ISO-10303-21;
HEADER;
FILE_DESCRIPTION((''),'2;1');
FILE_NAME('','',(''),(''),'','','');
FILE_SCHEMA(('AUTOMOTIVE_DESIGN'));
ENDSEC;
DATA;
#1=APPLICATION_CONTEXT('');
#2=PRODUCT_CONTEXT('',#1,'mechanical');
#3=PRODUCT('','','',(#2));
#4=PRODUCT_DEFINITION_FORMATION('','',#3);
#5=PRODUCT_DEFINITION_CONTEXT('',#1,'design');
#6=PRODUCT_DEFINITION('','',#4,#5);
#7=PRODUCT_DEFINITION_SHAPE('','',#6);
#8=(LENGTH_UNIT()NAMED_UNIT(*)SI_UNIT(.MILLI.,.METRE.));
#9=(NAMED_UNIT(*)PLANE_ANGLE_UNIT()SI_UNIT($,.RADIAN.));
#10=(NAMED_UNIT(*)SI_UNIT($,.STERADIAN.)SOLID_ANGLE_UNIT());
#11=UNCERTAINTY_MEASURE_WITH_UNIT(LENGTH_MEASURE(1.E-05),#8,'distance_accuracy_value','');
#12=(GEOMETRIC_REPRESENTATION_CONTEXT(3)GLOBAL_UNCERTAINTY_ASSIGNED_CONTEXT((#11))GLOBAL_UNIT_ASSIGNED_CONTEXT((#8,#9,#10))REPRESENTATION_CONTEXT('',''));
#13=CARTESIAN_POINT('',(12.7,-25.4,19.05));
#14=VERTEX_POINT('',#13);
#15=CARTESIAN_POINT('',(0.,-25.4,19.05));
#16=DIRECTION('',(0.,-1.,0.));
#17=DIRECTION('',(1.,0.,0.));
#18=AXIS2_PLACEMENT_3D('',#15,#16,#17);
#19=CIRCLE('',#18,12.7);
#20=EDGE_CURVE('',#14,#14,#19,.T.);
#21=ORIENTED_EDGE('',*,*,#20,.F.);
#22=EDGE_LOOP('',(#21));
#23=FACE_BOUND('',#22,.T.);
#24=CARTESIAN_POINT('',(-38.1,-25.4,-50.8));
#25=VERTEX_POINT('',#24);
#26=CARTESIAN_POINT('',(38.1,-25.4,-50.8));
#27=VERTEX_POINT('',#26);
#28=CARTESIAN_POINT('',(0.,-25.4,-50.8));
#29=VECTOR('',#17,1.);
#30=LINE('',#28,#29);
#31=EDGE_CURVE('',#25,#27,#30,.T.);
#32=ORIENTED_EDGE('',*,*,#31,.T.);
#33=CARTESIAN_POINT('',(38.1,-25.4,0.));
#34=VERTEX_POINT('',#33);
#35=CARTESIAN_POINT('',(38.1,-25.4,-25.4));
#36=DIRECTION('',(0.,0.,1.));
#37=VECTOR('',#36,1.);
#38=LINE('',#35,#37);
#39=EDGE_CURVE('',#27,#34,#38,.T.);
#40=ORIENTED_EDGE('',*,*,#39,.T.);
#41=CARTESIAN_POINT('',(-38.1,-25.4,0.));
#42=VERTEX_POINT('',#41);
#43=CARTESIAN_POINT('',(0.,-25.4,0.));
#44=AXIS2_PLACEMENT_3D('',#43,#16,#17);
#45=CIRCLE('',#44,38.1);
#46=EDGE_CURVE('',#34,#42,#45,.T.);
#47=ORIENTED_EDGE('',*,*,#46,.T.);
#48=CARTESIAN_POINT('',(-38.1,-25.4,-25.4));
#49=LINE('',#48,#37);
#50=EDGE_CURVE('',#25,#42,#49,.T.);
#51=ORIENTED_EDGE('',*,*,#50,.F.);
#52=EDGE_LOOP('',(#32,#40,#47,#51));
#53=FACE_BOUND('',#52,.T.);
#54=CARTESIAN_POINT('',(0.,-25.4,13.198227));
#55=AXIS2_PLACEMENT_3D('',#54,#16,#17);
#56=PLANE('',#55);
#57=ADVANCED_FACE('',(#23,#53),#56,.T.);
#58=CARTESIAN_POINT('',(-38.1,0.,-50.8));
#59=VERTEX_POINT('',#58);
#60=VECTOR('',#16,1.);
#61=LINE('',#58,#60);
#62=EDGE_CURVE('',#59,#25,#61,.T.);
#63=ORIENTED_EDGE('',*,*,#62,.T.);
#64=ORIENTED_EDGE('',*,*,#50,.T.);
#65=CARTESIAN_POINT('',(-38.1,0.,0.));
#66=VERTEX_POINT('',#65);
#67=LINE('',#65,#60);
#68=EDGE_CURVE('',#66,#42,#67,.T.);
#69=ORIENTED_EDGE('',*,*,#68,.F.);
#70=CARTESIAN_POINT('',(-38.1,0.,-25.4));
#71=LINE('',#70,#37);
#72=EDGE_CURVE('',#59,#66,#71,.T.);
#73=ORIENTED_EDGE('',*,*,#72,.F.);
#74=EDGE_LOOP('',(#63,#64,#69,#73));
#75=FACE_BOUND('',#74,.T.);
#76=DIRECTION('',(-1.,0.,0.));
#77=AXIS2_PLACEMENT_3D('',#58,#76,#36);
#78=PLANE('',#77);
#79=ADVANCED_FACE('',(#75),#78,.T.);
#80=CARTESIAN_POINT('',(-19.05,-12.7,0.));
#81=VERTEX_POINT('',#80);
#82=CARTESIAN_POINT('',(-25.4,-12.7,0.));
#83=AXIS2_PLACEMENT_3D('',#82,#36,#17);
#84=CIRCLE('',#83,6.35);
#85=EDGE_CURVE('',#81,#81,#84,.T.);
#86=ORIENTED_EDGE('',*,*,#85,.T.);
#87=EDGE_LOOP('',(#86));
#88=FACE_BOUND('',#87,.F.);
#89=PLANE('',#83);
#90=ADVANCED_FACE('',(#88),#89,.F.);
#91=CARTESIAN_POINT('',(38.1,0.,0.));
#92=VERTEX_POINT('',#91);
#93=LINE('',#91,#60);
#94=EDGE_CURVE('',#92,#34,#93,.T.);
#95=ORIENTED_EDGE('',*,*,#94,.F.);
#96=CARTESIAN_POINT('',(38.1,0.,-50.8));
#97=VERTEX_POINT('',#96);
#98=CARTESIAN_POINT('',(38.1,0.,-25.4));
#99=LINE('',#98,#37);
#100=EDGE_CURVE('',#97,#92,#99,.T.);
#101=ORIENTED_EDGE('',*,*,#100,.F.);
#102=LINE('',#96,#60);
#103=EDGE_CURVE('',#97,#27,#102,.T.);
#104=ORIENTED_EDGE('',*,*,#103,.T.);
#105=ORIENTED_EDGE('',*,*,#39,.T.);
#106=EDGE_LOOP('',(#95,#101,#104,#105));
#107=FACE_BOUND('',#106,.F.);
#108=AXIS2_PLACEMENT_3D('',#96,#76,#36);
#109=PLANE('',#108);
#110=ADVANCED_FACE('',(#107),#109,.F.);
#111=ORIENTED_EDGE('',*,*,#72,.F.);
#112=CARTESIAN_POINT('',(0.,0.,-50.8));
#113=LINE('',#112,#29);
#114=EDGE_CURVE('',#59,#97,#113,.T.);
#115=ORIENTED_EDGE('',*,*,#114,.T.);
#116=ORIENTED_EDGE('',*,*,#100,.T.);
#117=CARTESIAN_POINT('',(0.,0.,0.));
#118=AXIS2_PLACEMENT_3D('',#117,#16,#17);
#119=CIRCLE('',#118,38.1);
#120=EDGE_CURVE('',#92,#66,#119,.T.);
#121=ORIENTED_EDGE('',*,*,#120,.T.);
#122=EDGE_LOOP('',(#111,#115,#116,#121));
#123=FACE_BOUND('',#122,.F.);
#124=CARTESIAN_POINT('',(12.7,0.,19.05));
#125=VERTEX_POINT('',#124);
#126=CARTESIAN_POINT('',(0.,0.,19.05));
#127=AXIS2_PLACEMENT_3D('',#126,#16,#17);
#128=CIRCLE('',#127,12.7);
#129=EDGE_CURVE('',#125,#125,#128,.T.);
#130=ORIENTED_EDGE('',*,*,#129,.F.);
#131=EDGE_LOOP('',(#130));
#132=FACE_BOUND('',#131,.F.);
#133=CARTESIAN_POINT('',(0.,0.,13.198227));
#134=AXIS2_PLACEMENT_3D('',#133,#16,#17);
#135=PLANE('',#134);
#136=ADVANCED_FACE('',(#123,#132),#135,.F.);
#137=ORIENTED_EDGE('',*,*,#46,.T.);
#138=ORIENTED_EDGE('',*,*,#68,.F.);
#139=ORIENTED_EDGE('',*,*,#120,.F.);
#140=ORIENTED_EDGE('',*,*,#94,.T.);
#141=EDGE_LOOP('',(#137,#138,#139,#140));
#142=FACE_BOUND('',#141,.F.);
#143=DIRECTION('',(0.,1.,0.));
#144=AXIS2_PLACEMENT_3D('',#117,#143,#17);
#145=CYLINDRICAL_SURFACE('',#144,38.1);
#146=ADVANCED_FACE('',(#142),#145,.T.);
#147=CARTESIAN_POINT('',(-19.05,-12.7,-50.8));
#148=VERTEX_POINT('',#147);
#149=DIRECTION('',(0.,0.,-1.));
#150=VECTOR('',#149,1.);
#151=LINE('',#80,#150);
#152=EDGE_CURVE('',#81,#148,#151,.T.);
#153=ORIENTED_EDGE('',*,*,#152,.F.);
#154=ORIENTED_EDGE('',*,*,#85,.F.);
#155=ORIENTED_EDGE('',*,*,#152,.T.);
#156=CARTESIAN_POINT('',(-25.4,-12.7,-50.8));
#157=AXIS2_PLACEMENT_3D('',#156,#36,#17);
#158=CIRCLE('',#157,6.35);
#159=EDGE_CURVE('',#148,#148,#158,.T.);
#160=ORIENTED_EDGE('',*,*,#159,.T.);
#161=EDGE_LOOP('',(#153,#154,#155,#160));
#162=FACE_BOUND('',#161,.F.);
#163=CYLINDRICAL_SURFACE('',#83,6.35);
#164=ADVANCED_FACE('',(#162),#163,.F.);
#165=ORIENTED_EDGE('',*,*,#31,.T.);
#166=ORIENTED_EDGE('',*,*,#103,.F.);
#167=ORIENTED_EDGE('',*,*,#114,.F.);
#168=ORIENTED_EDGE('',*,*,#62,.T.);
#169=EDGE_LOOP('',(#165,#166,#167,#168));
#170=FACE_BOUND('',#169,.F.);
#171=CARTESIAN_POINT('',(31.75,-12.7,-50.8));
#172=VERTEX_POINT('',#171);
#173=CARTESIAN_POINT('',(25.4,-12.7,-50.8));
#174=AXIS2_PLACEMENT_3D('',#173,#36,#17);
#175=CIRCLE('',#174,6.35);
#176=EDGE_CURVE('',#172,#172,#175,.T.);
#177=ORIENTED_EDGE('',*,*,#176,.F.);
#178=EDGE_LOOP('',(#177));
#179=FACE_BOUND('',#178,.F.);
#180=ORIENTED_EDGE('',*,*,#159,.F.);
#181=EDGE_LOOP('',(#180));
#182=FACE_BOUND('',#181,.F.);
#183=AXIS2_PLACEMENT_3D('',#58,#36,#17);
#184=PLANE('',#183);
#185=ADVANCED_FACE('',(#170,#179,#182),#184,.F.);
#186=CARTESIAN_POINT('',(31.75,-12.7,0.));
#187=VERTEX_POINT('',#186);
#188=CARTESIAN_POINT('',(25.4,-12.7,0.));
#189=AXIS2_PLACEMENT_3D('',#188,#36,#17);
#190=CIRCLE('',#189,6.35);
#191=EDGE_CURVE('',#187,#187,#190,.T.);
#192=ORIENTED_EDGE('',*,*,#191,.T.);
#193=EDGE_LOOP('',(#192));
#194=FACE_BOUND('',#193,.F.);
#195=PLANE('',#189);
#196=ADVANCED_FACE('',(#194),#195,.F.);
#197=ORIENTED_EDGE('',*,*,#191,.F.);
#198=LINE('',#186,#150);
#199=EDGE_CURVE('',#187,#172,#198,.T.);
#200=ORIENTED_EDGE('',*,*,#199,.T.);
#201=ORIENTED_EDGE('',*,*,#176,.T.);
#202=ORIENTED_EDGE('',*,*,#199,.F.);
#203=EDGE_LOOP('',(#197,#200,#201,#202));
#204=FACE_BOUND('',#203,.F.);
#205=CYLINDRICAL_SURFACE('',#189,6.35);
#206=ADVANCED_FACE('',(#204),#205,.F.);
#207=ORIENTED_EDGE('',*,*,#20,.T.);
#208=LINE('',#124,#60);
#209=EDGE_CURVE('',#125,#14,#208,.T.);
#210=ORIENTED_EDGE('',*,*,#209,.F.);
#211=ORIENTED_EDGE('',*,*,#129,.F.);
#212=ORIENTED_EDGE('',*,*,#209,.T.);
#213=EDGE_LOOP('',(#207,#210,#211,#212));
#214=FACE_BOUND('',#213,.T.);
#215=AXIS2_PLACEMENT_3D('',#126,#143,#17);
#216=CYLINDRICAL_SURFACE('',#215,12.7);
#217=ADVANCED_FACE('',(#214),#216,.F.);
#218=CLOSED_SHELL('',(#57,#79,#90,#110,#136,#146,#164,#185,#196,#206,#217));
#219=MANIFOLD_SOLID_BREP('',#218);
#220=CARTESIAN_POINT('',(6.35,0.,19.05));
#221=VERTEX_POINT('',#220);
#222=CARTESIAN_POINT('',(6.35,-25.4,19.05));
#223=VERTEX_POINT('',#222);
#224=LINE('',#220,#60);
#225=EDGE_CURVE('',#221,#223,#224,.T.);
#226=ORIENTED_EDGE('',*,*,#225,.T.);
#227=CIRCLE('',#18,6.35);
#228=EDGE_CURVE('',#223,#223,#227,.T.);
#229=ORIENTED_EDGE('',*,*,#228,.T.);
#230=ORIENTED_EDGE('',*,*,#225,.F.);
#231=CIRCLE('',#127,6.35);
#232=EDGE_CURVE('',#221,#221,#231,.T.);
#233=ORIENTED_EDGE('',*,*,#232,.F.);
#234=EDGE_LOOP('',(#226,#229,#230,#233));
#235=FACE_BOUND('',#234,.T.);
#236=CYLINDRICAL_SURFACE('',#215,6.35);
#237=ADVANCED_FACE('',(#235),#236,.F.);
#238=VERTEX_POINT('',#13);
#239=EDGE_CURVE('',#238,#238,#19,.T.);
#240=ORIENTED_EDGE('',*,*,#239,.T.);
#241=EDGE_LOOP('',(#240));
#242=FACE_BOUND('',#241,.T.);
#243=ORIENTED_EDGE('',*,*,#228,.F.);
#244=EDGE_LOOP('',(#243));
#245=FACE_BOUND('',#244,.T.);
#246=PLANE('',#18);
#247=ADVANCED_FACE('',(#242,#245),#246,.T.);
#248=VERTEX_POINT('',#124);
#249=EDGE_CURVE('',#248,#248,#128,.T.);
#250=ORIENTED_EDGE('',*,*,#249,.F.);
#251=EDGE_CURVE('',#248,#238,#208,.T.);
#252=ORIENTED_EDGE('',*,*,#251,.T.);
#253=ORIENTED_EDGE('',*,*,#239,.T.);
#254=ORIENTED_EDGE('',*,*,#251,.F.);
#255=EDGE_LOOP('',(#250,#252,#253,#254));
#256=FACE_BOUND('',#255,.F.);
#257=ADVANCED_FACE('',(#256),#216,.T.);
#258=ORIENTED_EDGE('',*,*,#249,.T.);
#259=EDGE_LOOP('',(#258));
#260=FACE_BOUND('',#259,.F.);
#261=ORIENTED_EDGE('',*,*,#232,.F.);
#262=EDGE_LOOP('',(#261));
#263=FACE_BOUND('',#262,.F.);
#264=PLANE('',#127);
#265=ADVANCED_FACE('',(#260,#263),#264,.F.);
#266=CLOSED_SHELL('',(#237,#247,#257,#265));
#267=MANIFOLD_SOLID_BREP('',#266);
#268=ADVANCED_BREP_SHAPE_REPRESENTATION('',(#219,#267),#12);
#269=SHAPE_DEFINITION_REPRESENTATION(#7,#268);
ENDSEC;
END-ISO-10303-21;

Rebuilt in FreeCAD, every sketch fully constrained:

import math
import FreeCAD as App
import Part
import Sketcher
Q = App.Units.Quantity

doc = App.newDocument("Part")
params = doc.addObject("Spreadsheet::Sheet", "Params")
for row, (alias, value) in enumerate([
    ("sketch1_diameter", "1 in"),
    ("sketch1_radius", "1.5 in"),
    ("sketch1_height", "2 in"),
    ("pad1_length", "1 in"),
    ("sketch2_diameter", "0.5 in"),
    ("sketch3_diameter", "1 in"),
    ("sketch3_diameter2", "0.5 in"),
    ("pad2_length", "1 in"),
], start=1):
    params.set(f"A{row}", alias)
    params.set(f"B{row}", "=" + value)
    params.setAlias(f"B{row}", alias)

body = doc.addObject("PartDesign::Body", "Body")

# Sketch on XZ plane
sketch1 = body.newObject("Sketcher::SketchObject", "Sketch")
sketch1.AttachmentSupport = (doc.getObject("XZ_Plane"), [""])
sketch1.MapMode = "FlatFace"
sketch1.addGeometry(Part.ArcOfCircle(Part.Circle(App.Vector(0, 0, 0), App.Vector(0, 0, 1), 38), math.radians(0), math.radians(180)), False)
sketch1.addGeometry(Part.LineSegment(App.Vector(-38, 0, 0), App.Vector(-38, -51, 0)), False)
sketch1.addGeometry(Part.LineSegment(App.Vector(-38, -51, 0), App.Vector(38, -51, 0)), False)
sketch1.addGeometry(Part.LineSegment(App.Vector(38, -51, 0), App.Vector(38, 0, 0)), False)
sketch1.addGeometry(Part.Circle(App.Vector(0, 19, 0), App.Vector(0, 0, 1), 13), False)
sketch1.addConstraint(Sketcher.Constraint("Tangent", 0, 2, 1, 1))
sketch1.addConstraint(Sketcher.Constraint("Coincident", 1, 2, 2, 1))
sketch1.addConstraint(Sketcher.Constraint("Coincident", 2, 2, 3, 1))
sketch1.addConstraint(Sketcher.Constraint("Tangent", 3, 2, 0, 1))
sketch1.addConstraint(Sketcher.Constraint("Vertical", 1))
sketch1.addConstraint(Sketcher.Constraint("Horizontal", 2))
sketch1.addConstraint(Sketcher.Constraint("Vertical", 3))
sketch1.addConstraint(Sketcher.Constraint("Coincident", 0, 3, -1, 1))
sketch1.addConstraint(Sketcher.Constraint("PointOnObject", 4, 3, -2))
sketch1.addConstraint(Sketcher.Constraint("Diameter", 4, Q("1 in")))
sketch1.addConstraint(Sketcher.Constraint("Radius", 0, Q("1.5 in")))
sketch1.addConstraint(Sketcher.Constraint("DistanceY", 1, 2, 1, 1, Q("2 in")))
sketch1.addConstraint(Sketcher.Constraint("DistanceY", -1, 1, 4, 3, Q("0.75 in")))
sketch1.setExpression("Constraints[9]", "Params.sketch1_diameter")
sketch1.setExpression("Constraints[10]", "Params.sketch1_radius")
sketch1.setExpression("Constraints[11]", "Params.sketch1_height")
pad1 = body.newObject("PartDesign::Pad", "Pad")
pad1.Profile = sketch1
pad1.setExpression("Length", "Params.pad1_length")

# Sketch on XY plane
sketch2 = body.newObject("Sketcher::SketchObject", "Sketch001")
sketch2.AttachmentSupport = (doc.getObject("XY_Plane"), [""])
sketch2.MapMode = "FlatFace"
sketch2.addGeometry(Part.Circle(App.Vector(25, -13, 0), App.Vector(0, 0, 1), 6), False)
sketch2.addGeometry(Part.Circle(App.Vector(-25, -13, 0), App.Vector(0, 0, 1), 6), False)
sketch2.addConstraint(Sketcher.Constraint("Equal", 0, 1))
sketch2.addConstraint(Sketcher.Constraint("Symmetric", 0, 3, 1, 3, -2))
sketch2.addConstraint(Sketcher.Constraint("Diameter", 0, Q("0.5 in")))
sketch2.addConstraint(Sketcher.Constraint("DistanceX", -1, 1, 0, 3, Q("1 in")))
sketch2.addConstraint(Sketcher.Constraint("DistanceY", 0, 3, -1, 1, Q("0.5 in")))
sketch2.setExpression("Constraints[2]", "Params.sketch2_diameter")
pocket1 = body.newObject("PartDesign::Pocket", "Pocket")
pocket1.Profile = sketch2
pocket1.Type = "ThroughAll"
body2 = doc.addObject("PartDesign::Body", "Body001")

# Sketch on XZ plane
sketch3 = body2.newObject("Sketcher::SketchObject", "Sketch002")
sketch3.AttachmentSupport = (doc.getObject("XZ_Plane001"), [""])
sketch3.MapMode = "FlatFace"
sketch3.addGeometry(Part.Circle(App.Vector(0, 19, 0), App.Vector(0, 0, 1), 13), False)
sketch3.addGeometry(Part.Circle(App.Vector(0, 19, 0), App.Vector(0, 0, 1), 6), False)
sketch3.addConstraint(Sketcher.Constraint("Coincident", 1, 3, 0, 3))
sketch3.addConstraint(Sketcher.Constraint("PointOnObject", 0, 3, -2))
sketch3.addConstraint(Sketcher.Constraint("Diameter", 0, Q("1 in")))
sketch3.addConstraint(Sketcher.Constraint("Diameter", 1, Q("0.5 in")))
sketch3.addConstraint(Sketcher.Constraint("DistanceY", -1, 1, 0, 3, Q("0.75 in")))
sketch3.setExpression("Constraints[2]", "Params.sketch3_diameter")
sketch3.setExpression("Constraints[3]", "Params.sketch3_diameter2")
pad2 = body2.newObject("PartDesign::Pad", "Pad001")
pad2.Profile = sketch3
pad2.setExpression("Length", "Params.pad2_length")

doc.recompute()
